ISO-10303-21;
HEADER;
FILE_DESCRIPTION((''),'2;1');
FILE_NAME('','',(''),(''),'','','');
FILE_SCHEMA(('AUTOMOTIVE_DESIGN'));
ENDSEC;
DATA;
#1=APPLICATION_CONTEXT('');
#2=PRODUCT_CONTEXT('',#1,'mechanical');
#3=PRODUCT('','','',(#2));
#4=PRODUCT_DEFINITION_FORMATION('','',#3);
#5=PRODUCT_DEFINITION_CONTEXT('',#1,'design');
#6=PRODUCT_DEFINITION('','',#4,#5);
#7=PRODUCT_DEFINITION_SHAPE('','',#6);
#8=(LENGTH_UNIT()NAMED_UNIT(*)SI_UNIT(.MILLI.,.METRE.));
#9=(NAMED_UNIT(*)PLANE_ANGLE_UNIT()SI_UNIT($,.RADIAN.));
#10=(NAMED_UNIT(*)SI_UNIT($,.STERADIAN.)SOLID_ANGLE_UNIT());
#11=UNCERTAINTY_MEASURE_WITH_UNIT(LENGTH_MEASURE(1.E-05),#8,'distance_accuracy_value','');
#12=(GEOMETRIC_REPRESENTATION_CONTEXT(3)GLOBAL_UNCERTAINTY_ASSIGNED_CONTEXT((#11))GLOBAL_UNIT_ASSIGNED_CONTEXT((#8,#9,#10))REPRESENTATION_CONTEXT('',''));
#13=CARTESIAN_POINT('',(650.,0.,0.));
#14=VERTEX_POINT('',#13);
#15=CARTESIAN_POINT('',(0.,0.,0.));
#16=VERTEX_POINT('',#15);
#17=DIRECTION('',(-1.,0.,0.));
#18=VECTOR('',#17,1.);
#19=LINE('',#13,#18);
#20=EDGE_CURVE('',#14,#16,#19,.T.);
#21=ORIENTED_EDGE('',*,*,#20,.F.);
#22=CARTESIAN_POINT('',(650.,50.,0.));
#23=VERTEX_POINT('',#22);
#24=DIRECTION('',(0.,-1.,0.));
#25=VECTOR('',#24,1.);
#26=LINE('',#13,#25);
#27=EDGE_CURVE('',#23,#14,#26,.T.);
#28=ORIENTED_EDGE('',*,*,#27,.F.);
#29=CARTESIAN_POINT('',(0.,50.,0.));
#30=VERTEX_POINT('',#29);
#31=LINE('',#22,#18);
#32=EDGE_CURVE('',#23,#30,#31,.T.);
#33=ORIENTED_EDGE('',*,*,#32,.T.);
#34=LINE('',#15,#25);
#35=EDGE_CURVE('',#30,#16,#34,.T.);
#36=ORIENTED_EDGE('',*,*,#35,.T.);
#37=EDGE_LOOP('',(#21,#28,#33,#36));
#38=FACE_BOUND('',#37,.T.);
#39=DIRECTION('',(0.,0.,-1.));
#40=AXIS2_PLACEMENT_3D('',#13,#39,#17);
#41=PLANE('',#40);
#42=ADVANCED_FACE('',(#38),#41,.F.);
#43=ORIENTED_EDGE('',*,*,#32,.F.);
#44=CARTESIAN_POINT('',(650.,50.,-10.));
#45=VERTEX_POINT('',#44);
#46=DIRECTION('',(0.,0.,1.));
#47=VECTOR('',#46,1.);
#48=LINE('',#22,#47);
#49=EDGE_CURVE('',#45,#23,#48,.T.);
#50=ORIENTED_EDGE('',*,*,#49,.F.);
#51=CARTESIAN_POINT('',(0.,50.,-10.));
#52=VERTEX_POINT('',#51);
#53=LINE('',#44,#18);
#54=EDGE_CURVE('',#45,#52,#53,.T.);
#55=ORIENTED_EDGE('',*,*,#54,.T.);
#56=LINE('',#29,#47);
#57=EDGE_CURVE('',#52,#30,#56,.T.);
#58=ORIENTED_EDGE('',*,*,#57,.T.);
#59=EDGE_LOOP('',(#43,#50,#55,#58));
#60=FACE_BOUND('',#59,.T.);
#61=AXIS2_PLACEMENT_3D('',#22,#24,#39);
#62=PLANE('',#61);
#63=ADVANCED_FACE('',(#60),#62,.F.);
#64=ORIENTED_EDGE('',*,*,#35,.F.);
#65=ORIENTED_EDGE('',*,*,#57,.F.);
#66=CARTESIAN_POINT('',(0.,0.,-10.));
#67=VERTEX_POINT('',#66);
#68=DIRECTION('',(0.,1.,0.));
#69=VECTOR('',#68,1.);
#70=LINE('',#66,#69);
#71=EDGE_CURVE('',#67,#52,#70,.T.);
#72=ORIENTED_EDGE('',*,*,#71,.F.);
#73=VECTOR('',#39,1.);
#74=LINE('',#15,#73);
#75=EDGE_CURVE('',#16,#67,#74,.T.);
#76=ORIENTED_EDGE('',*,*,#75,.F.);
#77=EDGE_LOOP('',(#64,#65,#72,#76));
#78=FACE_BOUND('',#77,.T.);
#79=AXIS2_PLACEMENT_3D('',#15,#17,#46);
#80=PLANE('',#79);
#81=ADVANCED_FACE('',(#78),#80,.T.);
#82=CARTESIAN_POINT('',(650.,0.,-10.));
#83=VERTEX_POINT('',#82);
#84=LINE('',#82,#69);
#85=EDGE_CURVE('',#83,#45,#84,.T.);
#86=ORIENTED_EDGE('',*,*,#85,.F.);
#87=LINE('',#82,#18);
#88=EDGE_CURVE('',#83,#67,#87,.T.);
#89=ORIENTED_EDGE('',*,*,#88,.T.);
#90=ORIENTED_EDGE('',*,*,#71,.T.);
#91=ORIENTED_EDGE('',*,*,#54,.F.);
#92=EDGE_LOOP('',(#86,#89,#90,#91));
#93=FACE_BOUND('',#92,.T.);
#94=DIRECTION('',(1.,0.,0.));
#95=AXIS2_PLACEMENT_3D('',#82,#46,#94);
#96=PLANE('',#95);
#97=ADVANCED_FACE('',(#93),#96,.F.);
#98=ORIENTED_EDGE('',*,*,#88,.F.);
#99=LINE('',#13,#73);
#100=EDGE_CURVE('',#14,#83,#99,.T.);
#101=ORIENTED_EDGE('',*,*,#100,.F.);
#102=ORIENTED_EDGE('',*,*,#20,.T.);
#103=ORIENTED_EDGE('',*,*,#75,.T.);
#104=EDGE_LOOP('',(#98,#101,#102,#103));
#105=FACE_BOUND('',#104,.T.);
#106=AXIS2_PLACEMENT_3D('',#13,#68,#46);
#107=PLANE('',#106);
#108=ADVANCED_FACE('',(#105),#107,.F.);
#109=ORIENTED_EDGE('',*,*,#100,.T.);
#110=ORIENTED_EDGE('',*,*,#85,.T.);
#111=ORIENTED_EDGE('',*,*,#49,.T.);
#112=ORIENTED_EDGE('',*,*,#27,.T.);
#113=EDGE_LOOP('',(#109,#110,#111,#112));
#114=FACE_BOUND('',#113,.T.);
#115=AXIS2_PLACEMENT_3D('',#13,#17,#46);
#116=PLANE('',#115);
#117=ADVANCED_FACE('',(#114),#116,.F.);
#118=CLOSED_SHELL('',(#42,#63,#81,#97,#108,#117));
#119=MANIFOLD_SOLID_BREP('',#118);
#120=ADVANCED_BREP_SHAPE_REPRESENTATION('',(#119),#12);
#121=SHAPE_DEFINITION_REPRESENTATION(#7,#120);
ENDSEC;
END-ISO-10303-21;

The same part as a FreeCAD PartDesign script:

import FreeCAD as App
import Part
import Sketcher
Q = App.Units.Quantity

doc = App.newDocument("Part")
body = doc.addObject("PartDesign::Body", "Body")

sketch1 = body.newObject("Sketcher::SketchObject", "Sketch")
sketch1.AttachmentSupport = (doc.getObject("YZ_Plane"), [""])
sketch1.MapMode = "FlatFace"
sketch1.addGeometry([
    Part.LineSegment(App.Vector(50, 0, 0), App.Vector(0, 0, 0)),
    Part.LineSegment(App.Vector(0, 0, 0), App.Vector(0, -10, 0)),
    Part.LineSegment(App.Vector(0, -10, 0), App.Vector(50, -10, 0)),
    Part.LineSegment(App.Vector(50, -10, 0), App.Vector(50, 0, 0)),
], False)
sketch1.addConstraint([
    Sketcher.Constraint("Coincident", 0, 2, 1, 1),
    Sketcher.Constraint("Coincident", 1, 2, 2, 1),
    Sketcher.Constraint("Coincident", 2, 2, 3, 1),
    Sketcher.Constraint("Coincident", 3, 2, 0, 1),
    Sketcher.Constraint("Horizontal", 0),
    Sketcher.Constraint("Vertical", 1),
    Sketcher.Constraint("Horizontal", 2),
    Sketcher.Constraint("Vertical", 3),
    Sketcher.Constraint("Coincident", 0, 2, -1, 1),
    Sketcher.Constraint("DistanceX", 0, 2, 0, 1, Q("50 mm")),
    Sketcher.Constraint("DistanceY", 1, 2, 1, 1, Q("10 mm")),
])
pad1 = body.newObject("PartDesign::Pad", "Pad")
pad1.Profile = sketch1
pad1.Length = 650

doc.recompute()
